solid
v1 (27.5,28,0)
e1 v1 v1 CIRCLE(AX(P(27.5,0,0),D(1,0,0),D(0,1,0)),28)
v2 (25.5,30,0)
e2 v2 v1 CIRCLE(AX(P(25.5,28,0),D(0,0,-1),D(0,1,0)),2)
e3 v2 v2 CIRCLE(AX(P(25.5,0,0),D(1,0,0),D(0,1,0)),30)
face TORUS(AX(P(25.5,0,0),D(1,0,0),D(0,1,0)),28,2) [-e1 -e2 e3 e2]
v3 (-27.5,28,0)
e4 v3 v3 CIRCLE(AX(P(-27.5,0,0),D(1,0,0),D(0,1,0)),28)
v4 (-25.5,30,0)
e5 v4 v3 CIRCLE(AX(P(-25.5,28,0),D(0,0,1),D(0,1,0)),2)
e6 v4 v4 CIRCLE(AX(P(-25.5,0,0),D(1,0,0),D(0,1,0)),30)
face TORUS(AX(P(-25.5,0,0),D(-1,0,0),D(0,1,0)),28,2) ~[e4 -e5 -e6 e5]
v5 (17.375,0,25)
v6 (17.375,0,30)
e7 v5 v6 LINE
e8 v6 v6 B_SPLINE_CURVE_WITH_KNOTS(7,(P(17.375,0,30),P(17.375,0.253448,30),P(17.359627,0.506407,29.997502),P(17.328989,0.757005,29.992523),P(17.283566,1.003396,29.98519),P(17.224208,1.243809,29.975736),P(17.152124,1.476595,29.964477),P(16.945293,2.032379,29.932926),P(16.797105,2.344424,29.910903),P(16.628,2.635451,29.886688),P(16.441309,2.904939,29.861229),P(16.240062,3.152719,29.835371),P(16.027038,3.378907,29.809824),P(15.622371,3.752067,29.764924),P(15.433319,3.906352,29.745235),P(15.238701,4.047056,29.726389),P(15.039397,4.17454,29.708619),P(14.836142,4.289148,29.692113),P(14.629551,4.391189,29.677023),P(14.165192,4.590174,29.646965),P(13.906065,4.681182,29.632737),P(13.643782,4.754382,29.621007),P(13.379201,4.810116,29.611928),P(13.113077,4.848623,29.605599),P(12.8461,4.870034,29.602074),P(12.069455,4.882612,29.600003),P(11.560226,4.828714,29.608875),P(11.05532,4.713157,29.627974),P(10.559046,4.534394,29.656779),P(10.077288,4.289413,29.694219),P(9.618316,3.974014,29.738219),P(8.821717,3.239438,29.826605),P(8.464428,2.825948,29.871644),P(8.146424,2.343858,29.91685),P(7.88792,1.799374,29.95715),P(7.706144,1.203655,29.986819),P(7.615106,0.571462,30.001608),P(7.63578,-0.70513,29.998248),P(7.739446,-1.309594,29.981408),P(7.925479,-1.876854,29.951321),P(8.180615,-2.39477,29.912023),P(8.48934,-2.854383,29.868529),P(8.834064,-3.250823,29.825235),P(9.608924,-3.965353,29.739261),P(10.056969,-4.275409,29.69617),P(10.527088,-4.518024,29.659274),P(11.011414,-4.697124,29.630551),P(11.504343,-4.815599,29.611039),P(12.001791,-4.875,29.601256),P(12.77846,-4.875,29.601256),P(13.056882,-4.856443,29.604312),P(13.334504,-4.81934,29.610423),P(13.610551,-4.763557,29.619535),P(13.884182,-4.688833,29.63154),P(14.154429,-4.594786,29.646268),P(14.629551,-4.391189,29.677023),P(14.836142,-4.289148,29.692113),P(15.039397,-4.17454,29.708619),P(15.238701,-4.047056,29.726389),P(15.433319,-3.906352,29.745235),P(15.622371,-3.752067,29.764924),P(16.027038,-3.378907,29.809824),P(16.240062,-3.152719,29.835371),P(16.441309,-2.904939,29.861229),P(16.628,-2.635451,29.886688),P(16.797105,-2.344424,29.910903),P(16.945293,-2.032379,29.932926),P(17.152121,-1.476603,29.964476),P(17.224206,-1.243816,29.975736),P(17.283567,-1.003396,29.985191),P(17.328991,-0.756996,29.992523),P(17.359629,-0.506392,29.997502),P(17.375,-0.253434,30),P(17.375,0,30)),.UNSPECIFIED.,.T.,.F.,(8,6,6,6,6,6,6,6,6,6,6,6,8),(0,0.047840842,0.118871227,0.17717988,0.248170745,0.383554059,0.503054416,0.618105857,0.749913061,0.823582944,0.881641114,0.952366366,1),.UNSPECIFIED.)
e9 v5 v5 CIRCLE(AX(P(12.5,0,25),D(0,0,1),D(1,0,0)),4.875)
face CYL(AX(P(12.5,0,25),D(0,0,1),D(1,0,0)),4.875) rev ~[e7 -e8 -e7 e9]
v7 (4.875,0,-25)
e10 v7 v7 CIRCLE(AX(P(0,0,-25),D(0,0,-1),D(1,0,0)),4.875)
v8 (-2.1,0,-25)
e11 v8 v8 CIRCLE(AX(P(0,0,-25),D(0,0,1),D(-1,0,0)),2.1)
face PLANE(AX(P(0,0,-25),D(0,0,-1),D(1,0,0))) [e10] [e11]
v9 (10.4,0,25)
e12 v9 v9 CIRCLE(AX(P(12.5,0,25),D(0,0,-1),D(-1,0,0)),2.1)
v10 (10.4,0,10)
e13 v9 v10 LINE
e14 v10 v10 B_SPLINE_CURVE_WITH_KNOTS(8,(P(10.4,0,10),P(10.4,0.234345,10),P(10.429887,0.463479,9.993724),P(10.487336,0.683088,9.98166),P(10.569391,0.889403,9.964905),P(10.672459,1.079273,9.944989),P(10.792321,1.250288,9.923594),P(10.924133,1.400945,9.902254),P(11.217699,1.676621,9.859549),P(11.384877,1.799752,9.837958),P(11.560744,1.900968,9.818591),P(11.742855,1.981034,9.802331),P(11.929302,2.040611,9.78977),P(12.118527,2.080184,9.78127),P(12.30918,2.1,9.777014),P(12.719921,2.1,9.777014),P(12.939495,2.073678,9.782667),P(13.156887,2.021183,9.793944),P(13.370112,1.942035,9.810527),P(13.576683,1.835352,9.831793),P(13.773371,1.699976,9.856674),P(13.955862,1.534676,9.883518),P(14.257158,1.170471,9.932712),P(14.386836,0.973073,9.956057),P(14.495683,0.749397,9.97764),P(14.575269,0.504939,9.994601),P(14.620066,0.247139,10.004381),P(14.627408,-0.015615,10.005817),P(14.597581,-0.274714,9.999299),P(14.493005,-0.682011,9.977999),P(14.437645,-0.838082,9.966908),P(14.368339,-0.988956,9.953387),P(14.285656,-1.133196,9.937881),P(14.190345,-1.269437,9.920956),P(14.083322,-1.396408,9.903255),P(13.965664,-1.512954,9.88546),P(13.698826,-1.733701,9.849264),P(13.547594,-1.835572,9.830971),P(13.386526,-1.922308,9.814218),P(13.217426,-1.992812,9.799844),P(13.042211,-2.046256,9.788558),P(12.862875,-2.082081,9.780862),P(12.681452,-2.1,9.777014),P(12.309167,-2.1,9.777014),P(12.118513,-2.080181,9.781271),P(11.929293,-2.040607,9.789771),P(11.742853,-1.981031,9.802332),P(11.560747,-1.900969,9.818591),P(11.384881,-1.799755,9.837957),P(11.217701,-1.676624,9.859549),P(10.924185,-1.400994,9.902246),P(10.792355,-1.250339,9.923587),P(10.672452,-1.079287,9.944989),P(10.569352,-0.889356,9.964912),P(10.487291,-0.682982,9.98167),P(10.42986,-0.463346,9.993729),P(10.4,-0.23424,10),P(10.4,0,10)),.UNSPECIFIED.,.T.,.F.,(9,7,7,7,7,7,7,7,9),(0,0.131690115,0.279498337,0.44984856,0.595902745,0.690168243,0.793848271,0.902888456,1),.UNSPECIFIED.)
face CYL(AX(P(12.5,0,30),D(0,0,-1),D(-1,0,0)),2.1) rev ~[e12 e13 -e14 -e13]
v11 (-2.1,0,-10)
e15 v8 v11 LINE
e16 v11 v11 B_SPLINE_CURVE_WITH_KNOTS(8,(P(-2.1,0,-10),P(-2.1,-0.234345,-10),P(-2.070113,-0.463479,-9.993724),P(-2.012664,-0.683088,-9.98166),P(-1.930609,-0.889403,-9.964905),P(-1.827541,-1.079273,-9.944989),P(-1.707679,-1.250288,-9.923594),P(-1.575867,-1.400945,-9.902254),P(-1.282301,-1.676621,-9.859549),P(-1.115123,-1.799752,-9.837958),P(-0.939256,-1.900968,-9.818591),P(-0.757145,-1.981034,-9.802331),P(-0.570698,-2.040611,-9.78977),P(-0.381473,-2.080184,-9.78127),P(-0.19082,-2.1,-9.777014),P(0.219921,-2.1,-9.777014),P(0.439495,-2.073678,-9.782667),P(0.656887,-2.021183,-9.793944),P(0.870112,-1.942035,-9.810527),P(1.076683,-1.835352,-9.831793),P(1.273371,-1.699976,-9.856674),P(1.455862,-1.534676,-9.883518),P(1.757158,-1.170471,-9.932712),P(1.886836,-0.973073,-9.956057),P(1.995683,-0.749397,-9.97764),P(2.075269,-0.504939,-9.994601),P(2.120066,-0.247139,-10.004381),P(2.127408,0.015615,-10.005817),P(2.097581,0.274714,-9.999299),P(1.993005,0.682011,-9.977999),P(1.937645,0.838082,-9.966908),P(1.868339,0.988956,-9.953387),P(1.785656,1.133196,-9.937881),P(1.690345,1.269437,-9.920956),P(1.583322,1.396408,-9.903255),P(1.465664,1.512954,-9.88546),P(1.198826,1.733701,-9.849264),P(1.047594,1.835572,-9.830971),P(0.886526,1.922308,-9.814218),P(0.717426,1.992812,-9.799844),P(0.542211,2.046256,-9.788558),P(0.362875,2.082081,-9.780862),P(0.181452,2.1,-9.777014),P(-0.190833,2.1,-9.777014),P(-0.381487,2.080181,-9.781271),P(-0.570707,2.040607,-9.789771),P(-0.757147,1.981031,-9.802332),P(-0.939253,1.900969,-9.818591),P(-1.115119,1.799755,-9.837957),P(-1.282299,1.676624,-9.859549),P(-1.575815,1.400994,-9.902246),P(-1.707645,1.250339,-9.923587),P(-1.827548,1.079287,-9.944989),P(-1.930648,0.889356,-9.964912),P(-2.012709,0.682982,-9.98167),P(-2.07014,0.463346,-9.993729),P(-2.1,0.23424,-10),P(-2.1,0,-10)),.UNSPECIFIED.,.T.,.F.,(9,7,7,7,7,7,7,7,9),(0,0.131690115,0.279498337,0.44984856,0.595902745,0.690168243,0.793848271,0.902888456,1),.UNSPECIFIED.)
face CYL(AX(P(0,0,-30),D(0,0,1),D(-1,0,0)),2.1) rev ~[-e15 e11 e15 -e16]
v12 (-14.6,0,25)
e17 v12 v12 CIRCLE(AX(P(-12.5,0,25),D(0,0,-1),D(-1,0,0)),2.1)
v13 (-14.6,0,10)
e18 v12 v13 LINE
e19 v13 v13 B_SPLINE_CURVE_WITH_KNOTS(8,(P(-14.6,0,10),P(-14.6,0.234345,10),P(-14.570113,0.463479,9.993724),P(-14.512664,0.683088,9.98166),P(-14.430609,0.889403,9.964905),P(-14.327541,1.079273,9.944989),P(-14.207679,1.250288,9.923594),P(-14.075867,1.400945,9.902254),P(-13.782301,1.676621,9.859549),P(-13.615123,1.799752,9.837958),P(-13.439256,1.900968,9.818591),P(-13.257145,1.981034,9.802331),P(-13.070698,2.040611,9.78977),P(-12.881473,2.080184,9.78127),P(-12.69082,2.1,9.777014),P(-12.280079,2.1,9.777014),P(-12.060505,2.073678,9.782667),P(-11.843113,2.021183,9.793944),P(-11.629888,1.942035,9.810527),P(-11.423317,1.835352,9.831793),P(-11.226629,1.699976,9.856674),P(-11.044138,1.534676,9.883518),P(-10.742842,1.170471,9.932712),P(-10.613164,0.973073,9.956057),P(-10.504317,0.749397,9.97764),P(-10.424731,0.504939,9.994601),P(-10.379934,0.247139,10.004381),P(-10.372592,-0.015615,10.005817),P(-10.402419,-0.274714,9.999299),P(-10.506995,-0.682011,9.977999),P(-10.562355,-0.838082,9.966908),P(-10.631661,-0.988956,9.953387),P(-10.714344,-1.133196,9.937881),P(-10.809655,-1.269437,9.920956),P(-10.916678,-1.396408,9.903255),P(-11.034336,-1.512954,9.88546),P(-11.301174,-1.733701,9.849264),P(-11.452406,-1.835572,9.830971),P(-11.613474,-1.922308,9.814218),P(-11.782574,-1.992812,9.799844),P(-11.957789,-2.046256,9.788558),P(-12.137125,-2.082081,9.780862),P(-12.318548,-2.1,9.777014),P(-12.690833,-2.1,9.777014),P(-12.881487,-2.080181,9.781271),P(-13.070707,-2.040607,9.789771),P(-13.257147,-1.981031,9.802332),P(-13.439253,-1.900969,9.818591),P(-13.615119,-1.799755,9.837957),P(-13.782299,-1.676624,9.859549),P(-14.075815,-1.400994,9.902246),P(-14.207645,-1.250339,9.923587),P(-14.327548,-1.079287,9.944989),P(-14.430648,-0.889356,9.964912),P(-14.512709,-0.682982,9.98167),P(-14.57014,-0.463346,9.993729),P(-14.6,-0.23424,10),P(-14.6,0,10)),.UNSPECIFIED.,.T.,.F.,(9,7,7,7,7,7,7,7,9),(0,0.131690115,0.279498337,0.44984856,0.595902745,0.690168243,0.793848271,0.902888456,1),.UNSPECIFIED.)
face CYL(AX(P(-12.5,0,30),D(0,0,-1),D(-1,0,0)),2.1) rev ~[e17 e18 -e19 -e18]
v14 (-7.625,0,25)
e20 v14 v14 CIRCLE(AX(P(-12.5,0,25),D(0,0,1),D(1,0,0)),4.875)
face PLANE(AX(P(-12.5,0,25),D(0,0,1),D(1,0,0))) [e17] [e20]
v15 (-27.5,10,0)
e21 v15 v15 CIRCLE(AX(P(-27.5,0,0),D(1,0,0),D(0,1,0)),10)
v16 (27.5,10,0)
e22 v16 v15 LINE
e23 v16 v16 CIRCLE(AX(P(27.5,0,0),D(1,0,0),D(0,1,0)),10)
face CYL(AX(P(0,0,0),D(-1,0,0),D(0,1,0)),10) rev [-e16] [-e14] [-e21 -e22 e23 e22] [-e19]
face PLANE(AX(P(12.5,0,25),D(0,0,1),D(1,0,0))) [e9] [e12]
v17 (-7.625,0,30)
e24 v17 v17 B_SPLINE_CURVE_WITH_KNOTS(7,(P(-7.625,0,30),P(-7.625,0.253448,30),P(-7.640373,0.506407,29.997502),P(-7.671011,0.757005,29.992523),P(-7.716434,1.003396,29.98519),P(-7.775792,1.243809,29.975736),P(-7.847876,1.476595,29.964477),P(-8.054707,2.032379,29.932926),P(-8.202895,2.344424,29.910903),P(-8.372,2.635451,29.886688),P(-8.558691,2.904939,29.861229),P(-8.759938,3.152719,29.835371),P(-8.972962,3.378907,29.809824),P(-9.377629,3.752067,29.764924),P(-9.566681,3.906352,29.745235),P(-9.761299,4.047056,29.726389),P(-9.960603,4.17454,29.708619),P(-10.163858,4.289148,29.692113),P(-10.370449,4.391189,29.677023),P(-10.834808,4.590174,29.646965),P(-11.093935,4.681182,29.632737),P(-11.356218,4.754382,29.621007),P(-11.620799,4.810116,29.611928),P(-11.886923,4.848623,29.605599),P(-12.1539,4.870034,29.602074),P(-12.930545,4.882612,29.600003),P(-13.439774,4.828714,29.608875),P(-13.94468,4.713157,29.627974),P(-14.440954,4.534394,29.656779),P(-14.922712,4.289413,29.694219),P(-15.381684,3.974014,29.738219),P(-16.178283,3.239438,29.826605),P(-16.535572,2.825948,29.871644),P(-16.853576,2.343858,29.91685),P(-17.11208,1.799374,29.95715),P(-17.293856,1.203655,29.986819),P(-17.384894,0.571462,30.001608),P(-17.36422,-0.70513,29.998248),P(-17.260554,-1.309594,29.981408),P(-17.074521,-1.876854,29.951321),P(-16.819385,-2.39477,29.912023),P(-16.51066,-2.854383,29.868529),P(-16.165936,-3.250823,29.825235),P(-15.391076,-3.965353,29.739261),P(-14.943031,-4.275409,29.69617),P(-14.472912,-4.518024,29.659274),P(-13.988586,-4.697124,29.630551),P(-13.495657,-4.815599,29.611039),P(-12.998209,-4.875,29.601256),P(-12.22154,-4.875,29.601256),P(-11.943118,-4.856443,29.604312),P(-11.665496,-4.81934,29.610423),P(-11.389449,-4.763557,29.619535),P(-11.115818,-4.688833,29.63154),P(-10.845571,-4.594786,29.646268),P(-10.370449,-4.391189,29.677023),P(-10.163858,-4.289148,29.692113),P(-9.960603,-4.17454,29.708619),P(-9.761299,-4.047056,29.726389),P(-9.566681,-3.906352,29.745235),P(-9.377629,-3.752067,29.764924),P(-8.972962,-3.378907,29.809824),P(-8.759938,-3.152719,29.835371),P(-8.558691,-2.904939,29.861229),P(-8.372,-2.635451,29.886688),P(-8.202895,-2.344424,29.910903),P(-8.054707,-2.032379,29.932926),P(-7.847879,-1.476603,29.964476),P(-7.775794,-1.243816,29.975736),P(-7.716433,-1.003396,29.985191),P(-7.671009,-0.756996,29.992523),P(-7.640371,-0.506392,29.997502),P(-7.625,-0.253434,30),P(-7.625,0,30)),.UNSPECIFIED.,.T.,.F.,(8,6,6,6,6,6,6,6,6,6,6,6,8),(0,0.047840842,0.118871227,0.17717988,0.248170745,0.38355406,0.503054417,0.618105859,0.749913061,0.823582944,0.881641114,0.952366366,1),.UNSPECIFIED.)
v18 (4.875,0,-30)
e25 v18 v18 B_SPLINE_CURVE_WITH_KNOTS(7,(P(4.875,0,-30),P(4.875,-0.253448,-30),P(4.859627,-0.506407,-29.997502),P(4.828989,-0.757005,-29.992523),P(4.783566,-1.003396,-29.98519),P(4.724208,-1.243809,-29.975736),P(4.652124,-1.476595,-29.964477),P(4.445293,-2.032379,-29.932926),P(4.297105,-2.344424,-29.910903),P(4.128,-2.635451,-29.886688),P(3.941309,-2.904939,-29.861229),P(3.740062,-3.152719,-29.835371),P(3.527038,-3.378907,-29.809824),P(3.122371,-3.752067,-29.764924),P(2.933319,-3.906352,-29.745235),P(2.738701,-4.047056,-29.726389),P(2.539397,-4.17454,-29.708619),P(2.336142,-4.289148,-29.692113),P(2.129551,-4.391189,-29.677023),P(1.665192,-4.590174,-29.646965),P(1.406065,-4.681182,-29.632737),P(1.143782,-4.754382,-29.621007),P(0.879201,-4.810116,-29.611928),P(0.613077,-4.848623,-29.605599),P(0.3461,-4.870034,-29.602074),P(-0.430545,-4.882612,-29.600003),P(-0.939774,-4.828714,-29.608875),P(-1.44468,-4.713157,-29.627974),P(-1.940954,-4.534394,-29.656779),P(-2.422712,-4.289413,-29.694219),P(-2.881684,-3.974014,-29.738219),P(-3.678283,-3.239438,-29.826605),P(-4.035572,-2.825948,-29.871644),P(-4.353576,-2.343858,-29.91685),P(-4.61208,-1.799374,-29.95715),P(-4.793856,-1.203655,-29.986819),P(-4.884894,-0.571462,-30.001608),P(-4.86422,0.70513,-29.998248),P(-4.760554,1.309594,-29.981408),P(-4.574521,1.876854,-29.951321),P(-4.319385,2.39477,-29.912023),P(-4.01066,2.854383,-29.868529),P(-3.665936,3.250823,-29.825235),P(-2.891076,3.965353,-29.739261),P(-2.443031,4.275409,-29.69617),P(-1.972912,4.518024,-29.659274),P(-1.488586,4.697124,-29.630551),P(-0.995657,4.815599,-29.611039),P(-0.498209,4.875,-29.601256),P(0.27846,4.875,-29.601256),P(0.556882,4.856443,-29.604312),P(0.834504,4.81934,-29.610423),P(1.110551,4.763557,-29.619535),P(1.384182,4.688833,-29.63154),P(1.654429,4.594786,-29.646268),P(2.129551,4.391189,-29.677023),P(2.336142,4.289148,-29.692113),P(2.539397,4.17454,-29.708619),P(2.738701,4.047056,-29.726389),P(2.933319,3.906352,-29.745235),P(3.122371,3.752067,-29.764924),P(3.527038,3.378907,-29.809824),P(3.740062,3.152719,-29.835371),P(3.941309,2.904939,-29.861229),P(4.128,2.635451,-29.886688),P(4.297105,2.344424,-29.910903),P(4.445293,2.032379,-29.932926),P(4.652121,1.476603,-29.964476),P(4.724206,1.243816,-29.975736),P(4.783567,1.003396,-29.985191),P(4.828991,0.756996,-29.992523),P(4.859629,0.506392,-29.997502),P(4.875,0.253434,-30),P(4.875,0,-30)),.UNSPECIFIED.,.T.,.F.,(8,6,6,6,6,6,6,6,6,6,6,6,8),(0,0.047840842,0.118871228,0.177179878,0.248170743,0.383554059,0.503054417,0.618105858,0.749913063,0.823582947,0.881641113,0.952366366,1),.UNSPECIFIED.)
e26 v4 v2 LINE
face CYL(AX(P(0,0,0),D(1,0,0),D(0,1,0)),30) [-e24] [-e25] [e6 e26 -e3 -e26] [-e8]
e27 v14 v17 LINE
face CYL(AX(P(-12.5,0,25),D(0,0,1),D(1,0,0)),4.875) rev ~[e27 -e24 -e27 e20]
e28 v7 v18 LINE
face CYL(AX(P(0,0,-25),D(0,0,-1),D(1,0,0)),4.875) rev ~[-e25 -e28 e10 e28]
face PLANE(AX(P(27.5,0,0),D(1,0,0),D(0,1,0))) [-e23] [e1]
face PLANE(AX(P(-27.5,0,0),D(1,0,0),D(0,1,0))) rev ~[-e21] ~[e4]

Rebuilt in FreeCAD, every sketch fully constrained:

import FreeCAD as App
import Part
import Sketcher


def edges_at(feature, points):
    """Names of the edges that pass closest to the given points."""
    edges = feature.Shape.Edges
    near = lambda p: min(range(len(edges)), key=lambda i: edges[i].distToShape(Part.Vertex(*p))[0])
    return sorted({f"Edge{near(p) + 1}" for p in points})

doc = App.newDocument("Part")
body = doc.addObject("PartDesign::Body", "Body")

# Sketch on YZ plane
sketch1 = body.newObject("Sketcher::SketchObject", "Sketch")
sketch1.AttachmentSupport = (doc.getObject("YZ_Plane"), [""])
sketch1.MapMode = "FlatFace"
sketch1.addGeometry(Part.Circle(App.Vector(0, 0, 0), App.Vector(0, 0, 1), 30), False)
sketch1.addGeometry(Part.Circle(App.Vector(0, 0, 0), App.Vector(0, 0, 1), 10), False)
sketch1.addConstraint(Sketcher.Constraint("Coincident", 0, 3, -1, 1))
sketch1.addConstraint(Sketcher.Constraint("Coincident", 1, 3, -1, 1))
sketch1.addConstraint(Sketcher.Constraint("Diameter", 0, 60.0))
sketch1.addConstraint(Sketcher.Constraint("Diameter", 1, 20.0))
pad1 = body.newObject("PartDesign::Pad", "Pad")
pad1.Profile = sketch1
pad1.Length = 55
pad1.Midplane = True
doc.recompute()

fillet = body.newObject("PartDesign::Fillet", "Fillet")
fillet.Base = (pad1, edges_at(pad1, [(27.5, -30, 0), (-27.5, -30, 0)]))
fillet.Radius = 2

# Sketch on XY plane
sketch2 = body.newObject("Sketcher::SketchObject", "Sketch001")
sketch2.AttachmentSupport = (doc.getObject("XY_Plane"), [""])
sketch2.MapMode = "FlatFace"
sketch2.AttachmentOffset = App.Placement(App.Vector(0, 0, 30), App.Rotation())
sketch2.addGeometry(Part.Circle(App.Vector(-12.5, 0, 0), App.Vector(0, 0, 1), 2.1), False)
sketch2.addGeometry(Part.Circle(App.Vector(12.5, 0, 0), App.Vector(0, 0, 1), 2.1), False)
sketch2.addConstraint(Sketcher.Constraint("Equal", 0, 1))
sketch2.addConstraint(Sketcher.Constraint("Symmetric", 0, 3, 1, 3, -1, 1))
sketch2.addConstraint(Sketcher.Constraint("PointOnObject", 0, 3, -1))
sketch2.addConstraint(Sketcher.Constraint("Diameter", 0, 4.2))
sketch2.addConstraint(Sketcher.Constraint("DistanceX", 0, 3, 1, 3, 25.0))
doc.recompute()
hole = body.newObject("PartDesign::Hole", "Hole")
hole.Profile = sketch2
hole.ThreadType = "None"
hole.Diameter = 4.2
hole.DepthType = "Dimension"
hole.Depth = 22
hole.DrillPoint = "Angled"
hole.DrillPointAngle = 118
hole.HoleCutType = "Counterbore"
hole.HoleCutDiameter = 9.75
hole.HoleCutDepth = 5

# Sketch on XY plane
sketch3 = body.newObject("Sketcher::SketchObject", "Sketch002")
sketch3.AttachmentSupport = (doc.getObject("XY_Plane"), [""])
sketch3.MapMode = "FlatFace"
sketch3.AttachmentOffset = App.Placement(App.Vector(0, 0, -30), App.Rotation())
sketch3.addGeometry(Part.Circle(App.Vector(0, 0, 0), App.Vector(0, 0, 1), 2.1), False)
sketch3.addConstraint(Sketcher.Constraint("Coincident", 0, 3, -1, 1))
sketch3.addConstraint(Sketcher.Constraint("Diameter", 0, 4.2))
doc.recompute()
hole2 = body.newObject("PartDesign::Hole", "Hole001")
hole2.Profile = sketch3
hole2.ThreadType = "None"
hole2.Diameter = 4.2
hole2.DepthType = "Dimension"
hole2.Depth = 22
hole2.DrillPoint = "Angled"
hole2.DrillPointAngle = 118
hole2.HoleCutType = "Counterbore"
hole2.HoleCutDiameter = 9.75
hole2.HoleCutDepth = 5
hole2.Reversed = True

doc.recompute()
